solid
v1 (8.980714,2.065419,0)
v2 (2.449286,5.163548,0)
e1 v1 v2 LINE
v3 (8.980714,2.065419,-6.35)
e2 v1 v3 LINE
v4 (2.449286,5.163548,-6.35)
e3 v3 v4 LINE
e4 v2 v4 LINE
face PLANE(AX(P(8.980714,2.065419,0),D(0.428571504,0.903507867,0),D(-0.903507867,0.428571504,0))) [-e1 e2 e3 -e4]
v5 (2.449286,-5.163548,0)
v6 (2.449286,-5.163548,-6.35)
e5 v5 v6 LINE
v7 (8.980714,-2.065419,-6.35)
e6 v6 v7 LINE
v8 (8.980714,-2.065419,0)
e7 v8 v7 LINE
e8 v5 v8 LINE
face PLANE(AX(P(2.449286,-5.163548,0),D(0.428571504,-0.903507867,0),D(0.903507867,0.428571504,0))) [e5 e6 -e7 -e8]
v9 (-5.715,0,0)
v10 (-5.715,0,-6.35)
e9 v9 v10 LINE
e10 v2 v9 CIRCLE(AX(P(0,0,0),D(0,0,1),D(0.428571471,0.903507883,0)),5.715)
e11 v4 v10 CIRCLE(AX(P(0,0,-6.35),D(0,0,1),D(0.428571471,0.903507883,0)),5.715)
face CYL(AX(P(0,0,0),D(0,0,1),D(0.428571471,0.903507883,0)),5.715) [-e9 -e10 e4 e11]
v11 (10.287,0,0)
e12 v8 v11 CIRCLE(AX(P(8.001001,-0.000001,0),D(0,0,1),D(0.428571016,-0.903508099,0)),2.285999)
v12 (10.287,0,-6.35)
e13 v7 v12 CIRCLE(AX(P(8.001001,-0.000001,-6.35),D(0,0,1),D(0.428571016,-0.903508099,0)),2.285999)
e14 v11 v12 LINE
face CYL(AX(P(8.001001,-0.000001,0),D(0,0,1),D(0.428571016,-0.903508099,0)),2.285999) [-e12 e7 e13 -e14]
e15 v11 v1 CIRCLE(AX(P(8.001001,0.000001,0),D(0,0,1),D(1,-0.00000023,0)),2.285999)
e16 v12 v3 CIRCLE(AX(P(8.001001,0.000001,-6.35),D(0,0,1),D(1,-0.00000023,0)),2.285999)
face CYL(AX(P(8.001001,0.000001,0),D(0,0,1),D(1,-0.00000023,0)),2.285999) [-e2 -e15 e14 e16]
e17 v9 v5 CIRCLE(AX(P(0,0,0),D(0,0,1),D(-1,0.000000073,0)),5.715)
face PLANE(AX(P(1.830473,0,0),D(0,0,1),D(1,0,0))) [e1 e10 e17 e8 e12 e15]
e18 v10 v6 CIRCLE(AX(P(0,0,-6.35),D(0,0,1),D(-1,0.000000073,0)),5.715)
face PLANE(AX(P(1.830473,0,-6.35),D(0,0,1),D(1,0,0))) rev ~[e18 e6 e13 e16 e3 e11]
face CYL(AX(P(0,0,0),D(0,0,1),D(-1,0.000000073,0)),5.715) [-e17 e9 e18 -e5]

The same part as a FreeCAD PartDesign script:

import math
import FreeCAD as App
import Part
import Sketcher
Q = App.Units.Quantity

doc = App.newDocument("Part")
body = doc.addObject("PartDesign::Body", "Body")

sketch1 = body.newObject("Sketcher::SketchObject", "Sketch")
sketch1.AttachmentSupport = (doc.getObject("XY_Plane"), [""])
sketch1.MapMode = "FlatFace"
sketch1.addGeometry([
    Part.LineSegment(App.Vector(9, 2.1, 0), App.Vector(2.4, 5.2, 0)),
    Part.ArcOfCircle(Part.Circle(App.Vector(0, 0, 0), App.Vector(0, 0, 1), 5.7), math.radians(65), math.radians(180)),
    Part.ArcOfCircle(Part.Circle(App.Vector(0, 0, 0), App.Vector(0, 0, 1), 5.7), math.radians(180), math.radians(295)),
    Part.LineSegment(App.Vector(2.4, -5.2, 0), App.Vector(9, -2.1, 0)),
    Part.ArcOfCircle(Part.Circle(App.Vector(8, 0, 0), App.Vector(0, 0, 1), 2.3), math.radians(-65), math.radians(0)),
    Part.ArcOfCircle(Part.Circle(App.Vector(8, 0, 0), App.Vector(0, 0, 1), 2.3), math.radians(0), math.radians(65)),
], False)
sketch1.addConstraint([
    Sketcher.Constraint("Tangent", 0, 2, 1, 1),
    Sketcher.Constraint("Tangent", 1, 2, 2, 1),
    Sketcher.Constraint("Tangent", 2, 2, 3, 1),
    Sketcher.Constraint("Tangent", 3, 2, 4, 1),
    Sketcher.Constraint("Tangent", 4, 2, 5, 1),
    Sketcher.Constraint("Tangent", 5, 2, 0, 1),
    Sketcher.Constraint("Coincident", 1, 3, -1, 1),
    Sketcher.Constraint("Equal", 1, 2),
    Sketcher.Constraint("Equal", 4, 5),
    Sketcher.Constraint("PointOnObject", 4, 3, -1),
    Sketcher.Constraint("PointOnObject", 1, 2, -1),
    Sketcher.Constraint("PointOnObject", 4, 2, -1),
    Sketcher.Constraint("Radius", 4, Q("0.09 in")),
    Sketcher.Constraint("Radius", 1, Q("0.225 in")),
    Sketcher.Constraint("DistanceX", 1, 2, 4, 3, Q("0.54 in")),
])
pad1 = body.newObject("PartDesign::Pad", "Pad")
pad1.Profile = sketch1
pad1.Length = Q("0.25 in")
pad1.Reversed = True

doc.recompute()
